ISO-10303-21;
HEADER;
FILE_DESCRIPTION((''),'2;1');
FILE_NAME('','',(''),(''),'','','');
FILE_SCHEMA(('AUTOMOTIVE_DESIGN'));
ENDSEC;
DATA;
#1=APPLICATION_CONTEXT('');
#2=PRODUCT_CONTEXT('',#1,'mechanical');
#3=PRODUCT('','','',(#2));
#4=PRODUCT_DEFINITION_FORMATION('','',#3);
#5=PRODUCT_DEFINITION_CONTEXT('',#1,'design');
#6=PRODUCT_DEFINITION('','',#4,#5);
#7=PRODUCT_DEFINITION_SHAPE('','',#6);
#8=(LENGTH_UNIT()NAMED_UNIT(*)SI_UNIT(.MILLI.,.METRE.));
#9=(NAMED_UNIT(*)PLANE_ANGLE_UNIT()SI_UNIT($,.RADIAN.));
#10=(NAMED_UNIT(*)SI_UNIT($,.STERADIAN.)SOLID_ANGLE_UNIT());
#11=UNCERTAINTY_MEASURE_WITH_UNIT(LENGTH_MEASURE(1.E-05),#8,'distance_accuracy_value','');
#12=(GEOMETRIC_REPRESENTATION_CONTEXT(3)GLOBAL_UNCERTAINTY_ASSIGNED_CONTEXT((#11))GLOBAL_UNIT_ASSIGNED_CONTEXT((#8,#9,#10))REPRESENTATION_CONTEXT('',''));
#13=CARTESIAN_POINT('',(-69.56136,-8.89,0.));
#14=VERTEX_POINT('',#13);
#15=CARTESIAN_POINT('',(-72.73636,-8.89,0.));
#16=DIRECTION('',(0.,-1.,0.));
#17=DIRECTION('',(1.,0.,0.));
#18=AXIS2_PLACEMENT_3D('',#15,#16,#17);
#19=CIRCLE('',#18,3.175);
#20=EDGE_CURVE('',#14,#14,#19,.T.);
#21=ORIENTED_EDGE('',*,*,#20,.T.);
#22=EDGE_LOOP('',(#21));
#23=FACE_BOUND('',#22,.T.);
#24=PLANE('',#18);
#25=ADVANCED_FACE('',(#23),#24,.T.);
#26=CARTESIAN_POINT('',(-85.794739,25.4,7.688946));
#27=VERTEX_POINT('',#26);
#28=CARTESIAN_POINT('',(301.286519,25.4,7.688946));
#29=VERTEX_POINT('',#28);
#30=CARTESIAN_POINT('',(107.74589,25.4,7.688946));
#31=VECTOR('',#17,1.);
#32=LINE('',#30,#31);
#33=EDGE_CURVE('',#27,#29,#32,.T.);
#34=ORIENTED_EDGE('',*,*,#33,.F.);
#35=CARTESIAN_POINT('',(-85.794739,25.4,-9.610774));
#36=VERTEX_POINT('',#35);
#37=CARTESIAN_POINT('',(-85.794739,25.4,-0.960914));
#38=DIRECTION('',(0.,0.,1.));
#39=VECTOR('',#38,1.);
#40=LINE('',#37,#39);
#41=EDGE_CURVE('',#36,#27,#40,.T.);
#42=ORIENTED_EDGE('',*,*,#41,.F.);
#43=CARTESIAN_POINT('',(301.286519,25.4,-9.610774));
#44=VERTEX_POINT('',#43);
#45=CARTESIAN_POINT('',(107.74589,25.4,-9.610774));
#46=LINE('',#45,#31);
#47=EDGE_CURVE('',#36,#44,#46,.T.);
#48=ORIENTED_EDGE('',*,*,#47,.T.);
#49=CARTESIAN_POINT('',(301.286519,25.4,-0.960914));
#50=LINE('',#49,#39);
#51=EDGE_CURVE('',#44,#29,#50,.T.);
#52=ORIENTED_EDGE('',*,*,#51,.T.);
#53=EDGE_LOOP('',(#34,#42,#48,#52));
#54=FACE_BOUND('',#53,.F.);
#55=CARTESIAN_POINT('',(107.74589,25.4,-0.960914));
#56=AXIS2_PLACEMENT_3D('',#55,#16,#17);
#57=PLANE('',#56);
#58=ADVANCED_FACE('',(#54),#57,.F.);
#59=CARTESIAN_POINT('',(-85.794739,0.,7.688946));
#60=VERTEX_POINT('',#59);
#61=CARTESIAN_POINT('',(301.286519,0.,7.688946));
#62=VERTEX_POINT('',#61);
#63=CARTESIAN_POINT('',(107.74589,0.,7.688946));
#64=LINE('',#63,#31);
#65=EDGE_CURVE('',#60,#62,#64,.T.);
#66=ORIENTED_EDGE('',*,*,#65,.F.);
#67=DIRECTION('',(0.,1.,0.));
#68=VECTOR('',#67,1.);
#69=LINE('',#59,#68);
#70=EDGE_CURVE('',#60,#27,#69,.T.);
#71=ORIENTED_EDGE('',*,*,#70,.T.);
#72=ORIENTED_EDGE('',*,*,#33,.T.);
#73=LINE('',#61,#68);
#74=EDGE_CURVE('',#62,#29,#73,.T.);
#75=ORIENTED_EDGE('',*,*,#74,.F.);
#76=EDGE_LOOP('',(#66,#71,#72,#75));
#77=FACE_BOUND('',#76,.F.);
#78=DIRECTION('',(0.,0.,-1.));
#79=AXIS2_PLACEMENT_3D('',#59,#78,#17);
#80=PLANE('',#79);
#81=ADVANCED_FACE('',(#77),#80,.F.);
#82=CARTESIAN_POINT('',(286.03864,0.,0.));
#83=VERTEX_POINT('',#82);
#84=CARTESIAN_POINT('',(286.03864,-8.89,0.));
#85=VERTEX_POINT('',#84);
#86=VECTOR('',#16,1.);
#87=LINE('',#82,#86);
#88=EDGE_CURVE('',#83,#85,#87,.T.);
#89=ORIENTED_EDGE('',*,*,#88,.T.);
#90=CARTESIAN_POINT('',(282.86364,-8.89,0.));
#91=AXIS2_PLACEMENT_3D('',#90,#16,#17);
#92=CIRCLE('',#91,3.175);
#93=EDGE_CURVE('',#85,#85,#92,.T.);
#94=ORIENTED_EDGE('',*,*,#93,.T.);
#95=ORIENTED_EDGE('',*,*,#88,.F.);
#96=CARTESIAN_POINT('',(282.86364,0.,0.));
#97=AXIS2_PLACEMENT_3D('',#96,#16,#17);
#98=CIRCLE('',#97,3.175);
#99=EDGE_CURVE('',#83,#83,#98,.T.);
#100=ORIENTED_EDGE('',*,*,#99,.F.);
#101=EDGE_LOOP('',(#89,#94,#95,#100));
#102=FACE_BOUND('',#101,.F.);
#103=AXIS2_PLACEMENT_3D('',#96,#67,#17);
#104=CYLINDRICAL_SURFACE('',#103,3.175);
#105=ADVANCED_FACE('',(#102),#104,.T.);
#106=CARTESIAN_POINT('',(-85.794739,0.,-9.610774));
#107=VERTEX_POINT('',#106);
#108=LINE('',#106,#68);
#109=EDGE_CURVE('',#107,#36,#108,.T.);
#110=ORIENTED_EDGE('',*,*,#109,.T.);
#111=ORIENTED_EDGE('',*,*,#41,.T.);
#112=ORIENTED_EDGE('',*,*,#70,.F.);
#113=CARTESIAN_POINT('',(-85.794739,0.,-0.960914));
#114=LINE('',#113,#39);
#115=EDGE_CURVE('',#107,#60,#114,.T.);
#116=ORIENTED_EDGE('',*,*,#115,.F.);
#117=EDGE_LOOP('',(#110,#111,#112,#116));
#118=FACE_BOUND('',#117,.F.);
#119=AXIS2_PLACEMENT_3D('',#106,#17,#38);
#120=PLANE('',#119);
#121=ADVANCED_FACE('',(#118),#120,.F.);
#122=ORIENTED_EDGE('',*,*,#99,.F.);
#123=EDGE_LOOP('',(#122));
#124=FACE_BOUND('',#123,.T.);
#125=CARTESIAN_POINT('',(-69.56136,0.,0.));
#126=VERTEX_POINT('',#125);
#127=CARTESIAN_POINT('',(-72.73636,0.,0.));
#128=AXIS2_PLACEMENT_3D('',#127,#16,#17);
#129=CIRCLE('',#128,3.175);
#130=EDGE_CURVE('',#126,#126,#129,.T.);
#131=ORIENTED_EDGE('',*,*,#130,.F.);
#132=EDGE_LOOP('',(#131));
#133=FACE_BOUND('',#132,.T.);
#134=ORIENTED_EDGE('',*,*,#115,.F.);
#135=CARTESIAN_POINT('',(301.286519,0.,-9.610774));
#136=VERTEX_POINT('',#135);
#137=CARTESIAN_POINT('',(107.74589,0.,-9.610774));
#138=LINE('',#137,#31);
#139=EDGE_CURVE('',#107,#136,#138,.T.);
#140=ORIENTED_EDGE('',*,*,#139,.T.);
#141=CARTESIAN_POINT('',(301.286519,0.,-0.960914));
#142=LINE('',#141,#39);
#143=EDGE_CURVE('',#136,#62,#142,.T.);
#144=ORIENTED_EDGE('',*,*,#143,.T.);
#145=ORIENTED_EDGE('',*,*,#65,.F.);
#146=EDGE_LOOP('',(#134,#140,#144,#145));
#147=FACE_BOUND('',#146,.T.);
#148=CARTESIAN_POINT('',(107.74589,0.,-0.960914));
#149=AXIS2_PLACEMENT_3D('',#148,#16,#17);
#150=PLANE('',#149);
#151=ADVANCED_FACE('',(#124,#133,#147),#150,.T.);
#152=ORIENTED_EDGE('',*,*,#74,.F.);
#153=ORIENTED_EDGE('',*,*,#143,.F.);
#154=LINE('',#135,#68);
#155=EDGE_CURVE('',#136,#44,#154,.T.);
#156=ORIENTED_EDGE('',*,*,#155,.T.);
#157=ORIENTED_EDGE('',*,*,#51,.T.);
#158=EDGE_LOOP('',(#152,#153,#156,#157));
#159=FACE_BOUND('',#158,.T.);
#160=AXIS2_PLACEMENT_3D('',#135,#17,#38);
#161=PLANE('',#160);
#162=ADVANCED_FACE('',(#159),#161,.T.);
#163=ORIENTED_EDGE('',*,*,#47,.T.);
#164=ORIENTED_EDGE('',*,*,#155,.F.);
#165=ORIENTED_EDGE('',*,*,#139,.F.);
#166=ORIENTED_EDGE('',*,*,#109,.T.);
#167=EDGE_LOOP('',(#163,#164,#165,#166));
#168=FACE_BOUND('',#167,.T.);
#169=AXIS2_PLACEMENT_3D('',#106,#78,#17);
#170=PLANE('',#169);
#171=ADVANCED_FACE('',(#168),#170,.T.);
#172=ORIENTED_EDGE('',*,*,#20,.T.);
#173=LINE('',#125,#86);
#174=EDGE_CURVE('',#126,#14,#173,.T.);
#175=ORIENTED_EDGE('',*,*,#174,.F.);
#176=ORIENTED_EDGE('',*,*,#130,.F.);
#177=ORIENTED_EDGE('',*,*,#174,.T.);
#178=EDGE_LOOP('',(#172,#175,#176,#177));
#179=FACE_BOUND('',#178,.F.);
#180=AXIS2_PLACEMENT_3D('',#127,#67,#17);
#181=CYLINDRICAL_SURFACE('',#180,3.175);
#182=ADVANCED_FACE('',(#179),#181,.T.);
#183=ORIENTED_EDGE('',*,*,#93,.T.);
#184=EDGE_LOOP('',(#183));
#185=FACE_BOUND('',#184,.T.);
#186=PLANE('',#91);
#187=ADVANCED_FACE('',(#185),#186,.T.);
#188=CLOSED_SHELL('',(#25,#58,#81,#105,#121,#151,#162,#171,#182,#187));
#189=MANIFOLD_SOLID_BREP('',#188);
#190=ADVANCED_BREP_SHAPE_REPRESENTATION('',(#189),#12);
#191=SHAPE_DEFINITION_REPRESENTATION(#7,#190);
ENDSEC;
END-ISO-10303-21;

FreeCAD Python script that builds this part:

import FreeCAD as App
import Part
import Sketcher

V = App.Vector
Q = App.Units.Quantity


def add_polygon(sketch, points):
    """Adds a closed chain of lines whose ends are joined by coincident constraints."""
    first, n = sketch.GeometryCount, len(points)
    for a, b in zip(points, points[1:] + points[:1]):
        sketch.addGeometry(Part.LineSegment(App.Vector(*a, 0), App.Vector(*b, 0)), False)
    for i in range(n):
        sketch.addConstraint(Sketcher.Constraint("Coincident", first + i, 2, first + (i + 1) % n, 1))

doc = App.newDocument("Part")
body = doc.addObject("PartDesign::Body", "Body")

sketch1 = body.newObject("Sketcher::SketchObject", "Sketch")
sketch1.AttachmentSupport = (doc.getObject("XZ_Plane"), [""])
sketch1.MapMode = "FlatFace"
add_polygon(sketch1, [(-86, 8), (-86, -10), (301, -10), (301, 8)])
sketch1.addConstraint([
    Sketcher.Constraint("Vertical", 0),
    Sketcher.Constraint("Horizontal", 1),
    Sketcher.Constraint("Vertical", 2),
    Sketcher.Constraint("Horizontal", 3),
    Sketcher.Constraint("DistanceX", 1, 1, 1, 2, 387.081258),
    Sketcher.Constraint("DistanceY", 0, 2, 0, 1, 17.29972),
    Sketcher.Constraint("DistanceX", 0, 2, -1, 1, 85.794739),
    Sketcher.Constraint("DistanceY", 0, 2, -1, 1, 9.610774),
])
pad1 = body.newObject("PartDesign::Pad", "Pad")
pad1.Profile = sketch1
pad1.Length = Q("1 in")
pad1.Reversed = True

sketch2 = body.newObject("Sketcher::SketchObject", "Sketch001")
sketch2.AttachmentSupport = (doc.getObject("XZ_Plane"), [""])
sketch2.MapMode = "FlatFace"
sketch2.addGeometry([
    Part.Circle(V(-72.7, 0, 0), V(0, 0, 1), 3.2),
    Part.Circle(V(282.9, 0, 0), V(0, 0, 1), 3.2),
], False)
sketch2.addConstraint([
    Sketcher.Constraint("Equal", 0, 1),
    Sketcher.Constraint("PointOnObject", 0, 3, -1),
    Sketcher.Constraint("PointOnObject", 1, 3, -1),
    Sketcher.Constraint("Diameter", 0, Q("0.25 in")),
    Sketcher.Constraint("DistanceX", 0, 3, 1, 3, Q("14 in")),
    Sketcher.Constraint("DistanceX", 0, 3, -1, 1, 72.73636),
])
pad2 = body.newObject("PartDesign::Pad", "Pad001")
pad2.Profile = sketch2
pad2.Length = Q("0.35 in")

doc.recompute()
